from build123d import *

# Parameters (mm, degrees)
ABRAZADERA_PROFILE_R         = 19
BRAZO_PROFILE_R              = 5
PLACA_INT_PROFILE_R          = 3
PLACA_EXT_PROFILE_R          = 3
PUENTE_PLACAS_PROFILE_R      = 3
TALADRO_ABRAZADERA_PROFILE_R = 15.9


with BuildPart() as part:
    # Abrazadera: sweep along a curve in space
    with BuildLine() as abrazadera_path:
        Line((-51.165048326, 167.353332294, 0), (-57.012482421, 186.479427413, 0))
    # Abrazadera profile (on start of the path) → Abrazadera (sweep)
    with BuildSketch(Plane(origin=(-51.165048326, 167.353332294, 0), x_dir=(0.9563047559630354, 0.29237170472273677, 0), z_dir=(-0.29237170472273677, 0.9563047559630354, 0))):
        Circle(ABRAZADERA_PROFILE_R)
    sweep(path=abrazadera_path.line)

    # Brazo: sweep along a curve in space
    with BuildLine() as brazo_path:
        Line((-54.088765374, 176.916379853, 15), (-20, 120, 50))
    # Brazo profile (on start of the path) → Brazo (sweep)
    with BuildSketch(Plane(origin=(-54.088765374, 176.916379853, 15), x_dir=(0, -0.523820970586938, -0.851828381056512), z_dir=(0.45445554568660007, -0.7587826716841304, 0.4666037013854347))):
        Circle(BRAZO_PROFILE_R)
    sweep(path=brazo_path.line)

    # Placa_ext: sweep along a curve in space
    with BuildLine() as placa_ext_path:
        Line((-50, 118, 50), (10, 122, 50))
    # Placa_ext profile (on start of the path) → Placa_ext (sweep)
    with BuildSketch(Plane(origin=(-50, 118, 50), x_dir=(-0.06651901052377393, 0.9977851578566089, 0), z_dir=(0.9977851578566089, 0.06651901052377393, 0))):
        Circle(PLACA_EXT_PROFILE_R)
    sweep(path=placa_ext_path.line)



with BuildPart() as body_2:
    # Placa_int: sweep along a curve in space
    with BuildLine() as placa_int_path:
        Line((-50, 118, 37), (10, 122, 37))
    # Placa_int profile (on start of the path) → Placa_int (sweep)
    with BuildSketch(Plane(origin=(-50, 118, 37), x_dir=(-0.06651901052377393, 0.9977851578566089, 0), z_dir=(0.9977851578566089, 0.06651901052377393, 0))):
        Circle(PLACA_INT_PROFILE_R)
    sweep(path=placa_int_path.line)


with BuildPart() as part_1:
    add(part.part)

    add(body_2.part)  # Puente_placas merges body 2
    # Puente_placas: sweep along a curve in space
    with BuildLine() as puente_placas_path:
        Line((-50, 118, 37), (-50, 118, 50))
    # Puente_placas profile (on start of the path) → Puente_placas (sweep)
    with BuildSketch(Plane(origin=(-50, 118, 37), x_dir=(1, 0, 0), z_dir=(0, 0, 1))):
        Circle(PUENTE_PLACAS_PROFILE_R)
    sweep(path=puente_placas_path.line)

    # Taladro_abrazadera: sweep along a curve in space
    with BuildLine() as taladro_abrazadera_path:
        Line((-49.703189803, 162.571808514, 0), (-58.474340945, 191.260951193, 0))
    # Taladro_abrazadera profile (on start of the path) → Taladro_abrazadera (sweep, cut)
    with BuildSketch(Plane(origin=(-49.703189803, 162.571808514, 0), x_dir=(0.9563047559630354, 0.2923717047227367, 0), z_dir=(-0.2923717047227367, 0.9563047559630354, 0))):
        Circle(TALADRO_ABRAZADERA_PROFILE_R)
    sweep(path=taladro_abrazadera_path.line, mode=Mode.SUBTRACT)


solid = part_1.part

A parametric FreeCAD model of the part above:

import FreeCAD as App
import Part
import Sketcher
from FreeCAD import Vector

doc = App.newDocument("Part")
body = doc.addObject("PartDesign::Body", "Body")

sketch1 = body.newObject("Sketcher::SketchObject", "Sketch")
sketch1.Placement = App.Placement(Vector(-51.165048, 167.353332, 0), App.Rotation(Vector(0.956304756, 0.292371705, 0), Vector(0, 0, -1), Vector(-0.292371705, 0.956304756, 0), "ZXY"))
sketch1.addGeometry(Part.Circle(Vector(0, 0, 0), Vector(0, 0, 1), 19), False)
sketch1.addConstraint([
    Sketcher.Constraint("Coincident", 0, 3, -1, 1),
    Sketcher.Constraint("Diameter", 0, 38.0),
])

sketch2 = body.newObject("Sketcher::SketchObject", "Sketch001")
sketch2.Placement = App.Placement(Vector(0, 0, 0), App.Rotation(Vector(-0.292371705, 0.956304756, 0), Vector(0, 0, 1), Vector(0.956304756, 0.292371705, 0), "ZXY"))
sketch2.addGeometry(Part.LineSegment(Vector(175, 0, 0), Vector(195, 0, 0)), False)
sketch2.addConstraint([
    Sketcher.Constraint("Horizontal", 0),
    Sketcher.Constraint("PointOnObject", 0, 1, -1),
    Sketcher.Constraint("DistanceX", 0, 1, 0, 2, 20.0),
    Sketcher.Constraint("DistanceX", -1, 1, 0, 1, 175.0),
])
doc.recompute()

additivepipe = body.newObject("PartDesign::AdditivePipe", "AdditivePipe")
additivepipe.Profile = sketch1
additivepipe.Spine = (sketch2, ["Edge1"])

sketch3 = body.newObject("Sketcher::SketchObject", "Sketch002")
sketch3.Placement = App.Placement(Vector(-54.088765, 176.91638, 15), App.Rotation(Vector(0, -0.523820971, -0.851828381), Vector(0.890769419, 0.387118132, -0.238053345), Vector(0.454455546, -0.758782672, 0.466603701), "ZXY"))
sketch3.addGeometry(Part.Circle(Vector(0, 0, 0), Vector(0, 0, 1), 5), False)
sketch3.addConstraint([
    Sketcher.Constraint("Coincident", 0, 3, -1, 1),
    Sketcher.Constraint("Diameter", 0, 10.0),
])

sketch4 = body.newObject("Sketcher::SketchObject", "Sketch003")
sketch4.Placement = App.Placement(Vector(0, 55.236888, 89.825248), App.Rotation(Vector(0, -0.851828381, 0.523820971), Vector(1, 0, 0), Vector(0, 0.523820971, 0.851828381), "ZXY"))
sketch4.addGeometry(Part.LineSegment(Vector(-143, -54, 0), Vector(-76, -20, 0)), False)
sketch4.addConstraint([
    Sketcher.Constraint("DistanceY", 0, 2, -1, 1, 20.0),
    Sketcher.Constraint("Distance", 0, 75.010121),
    Sketcher.Constraint("DistanceX", 0, 1, -1, 1, 142.845079),
    Sketcher.Constraint("DistanceX", 0, 1, 0, 2, 66.816722),
])
doc.recompute()

additivepipe2 = body.newObject("PartDesign::AdditivePipe", "AdditivePipe001")
additivepipe2.Profile = sketch3
additivepipe2.Spine = (sketch4, ["Edge1"])

sketch5 = body.newObject("Sketcher::SketchObject", "Sketch004")
sketch5.Placement = App.Placement(Vector(-50, 118, 50), App.Rotation(Vector(-0.066519011, 0.997785158, 0), Vector(0, 0, 1), Vector(0.997785158, 0.066519011, 0), "ZXY"))
sketch5.addGeometry(Part.Circle(Vector(0, 0, 0), Vector(0, 0, 1), 3), False)
sketch5.addConstraint([
    Sketcher.Constraint("Coincident", 0, 3, -1, 1),
    Sketcher.Constraint("Diameter", 0, 6.0),
])

sketch6 = body.newObject("Sketcher::SketchObject", "Sketch005")
sketch6.Placement = App.Placement(Vector(-8.053097, 120.79646, 0), App.Rotation(Vector(0.997785158, 0.066519011, 0), Vector(0, 0, 1), Vector(0.066519011, -0.997785158, 0), "ZXY"))
sketch6.addGeometry(Part.LineSegment(Vector(-42, 50, 0), Vector(18, 50, 0)), False)
sketch6.addConstraint([
    Sketcher.Constraint("Horizontal", 0),
    Sketcher.Constraint("DistanceY", -1, 1, 0, 1, 50.0),
    Sketcher.Constraint("DistanceX", 0, 1, 0, 2, 60.133186),
    Sketcher.Constraint("DistanceX", -1, 1, 0, 2, 18.093171),
])
doc.recompute()

additivepipe3 = body.newObject("PartDesign::AdditivePipe", "AdditivePipe002")
additivepipe3.Profile = sketch5
additivepipe3.Spine = (sketch6, ["Edge1"])
body2 = doc.addObject("PartDesign::Body", "Body001")

sketch7 = body2.newObject("Sketcher::SketchObject", "Sketch006")
sketch7.Placement = App.Placement(Vector(-50, 118, 37), App.Rotation(Vector(-0.066519011, 0.997785158, 0), Vector(0, 0, 1), Vector(0.997785158, 0.066519011, 0), "ZXY"))
sketch7.addGeometry(Part.Circle(Vector(0, 0, 0), Vector(0, 0, 1), 3), False)
sketch7.addConstraint([
    Sketcher.Constraint("Coincident", 0, 3, -1, 1),
    Sketcher.Constraint("Diameter", 0, 6.0),
])

sketch8 = body2.newObject("Sketcher::SketchObject", "Sketch007")
sketch8.Placement = App.Placement(Vector(-8.053097, 120.79646, 0), App.Rotation(Vector(0.997785158, 0.066519011, 0), Vector(0, 0, 1), Vector(0.066519011, -0.997785158, 0), "ZXY"))
sketch8.addGeometry(Part.LineSegment(Vector(-42, 37, 0), Vector(18, 37, 0)), False)
sketch8.addConstraint([
    Sketcher.Constraint("Horizontal", 0),
    Sketcher.Constraint("DistanceY", -1, 1, 0, 1, 37.0),
    Sketcher.Constraint("DistanceX", 0, 1, 0, 2, 60.133186),
    Sketcher.Constraint("DistanceX", -1, 1, 0, 2, 18.093171),
])
doc.recompute()

additivepipe4 = body2.newObject("PartDesign::AdditivePipe", "AdditivePipe003")
additivepipe4.Profile = sketch7
additivepipe4.Spine = (sketch8, ["Edge1"])
body.AllowCompound = True
doc.recompute()

boolean = body.newObject("PartDesign::Boolean", "Boolean")
boolean.Type = "Fuse"
boolean.addObjects([body2])

sketch9 = body.newObject("Sketcher::SketchObject", "Sketch008")
sketch9.AttachmentSupport = (doc.getObject("XY_Plane"), [""])
sketch9.MapMode = "FlatFace"
sketch9.AttachmentOffset = App.Placement(Vector(0, 0, 37), App.Rotation())
sketch9.addGeometry(Part.Circle(Vector(-50, 118, 0), Vector(0, 0, 1), 3), False)
sketch9.addConstraint([
    Sketcher.Constraint("Diameter", 0, 6.0),
    Sketcher.Constraint("DistanceX", 0, 3, -1, 1, 50.0),
    Sketcher.Constraint("DistanceY", -1, 1, 0, 3, 118.0),
])

sketch10 = body.newObject("Sketcher::SketchObject", "Sketch009")
sketch10.AttachmentSupport = (doc.getObject("XZ_Plane"), [""])
sketch10.MapMode = "FlatFace"
sketch10.AttachmentOffset = App.Placement(Vector(0, 0, -118), App.Rotation())
sketch10.addGeometry(Part.LineSegment(Vector(-50, 37, 0), Vector(-50, 50, 0)), False)
sketch10.addConstraint([
    Sketcher.Constraint("Vertical", 0),
    Sketcher.Constraint("DistanceY", 0, 1, 0, 2, 13.0),
    Sketcher.Constraint("DistanceX", 0, 1, -1, 1, 50.0),
    Sketcher.Constraint("DistanceY", -1, 1, 0, 1, 37.0),
])
doc.recompute()

additivepipe5 = body.newObject("PartDesign::AdditivePipe", "AdditivePipe004")
additivepipe5.Profile = sketch9
additivepipe5.Spine = (sketch10, ["Edge1"])

sketch11 = body.newObject("Sketcher::SketchObject", "Sketch010")
sketch11.Placement = App.Placement(Vector(-49.70319, 162.571809, 0), App.Rotation(Vector(0.956304756, 0.292371705, 0), Vector(0, 0, -1), Vector(-0.292371705, 0.956304756, 0), "ZXY"))
sketch11.addGeometry(Part.Circle(Vector(0, 0, 0), Vector(0, 0, 1), 16), False)
sketch11.addConstraint([
    Sketcher.Constraint("Coincident", 0, 3, -1, 1),
    Sketcher.Constraint("Diameter", 0, 31.8),
])

sketch12 = body.newObject("Sketcher::SketchObject", "Sketch011")
sketch12.Placement = App.Placement(Vector(0, 0, 0), App.Rotation(Vector(-0.292371705, 0.956304756, 0), Vector(0, 0, 1), Vector(0.956304756, 0.292371705, 0), "ZXY"))
sketch12.addGeometry(Part.LineSegment(Vector(170, 0, 0), Vector(200, 0, 0)), False)
sketch12.addConstraint([
    Sketcher.Constraint("Horizontal", 0),
    Sketcher.Constraint("PointOnObject", 0, 1, -1),
    Sketcher.Constraint("DistanceX", 0, 1, 0, 2, 30.0),
    Sketcher.Constraint("DistanceX", -1, 1, 0, 1, 170.0),
])
doc.recompute()

subtractivepipe = body.newObject("PartDesign::SubtractivePipe", "SubtractivePipe")
subtractivepipe.Profile = sketch11
subtractivepipe.Spine = (sketch12, ["Edge1"])

doc.recompute()
